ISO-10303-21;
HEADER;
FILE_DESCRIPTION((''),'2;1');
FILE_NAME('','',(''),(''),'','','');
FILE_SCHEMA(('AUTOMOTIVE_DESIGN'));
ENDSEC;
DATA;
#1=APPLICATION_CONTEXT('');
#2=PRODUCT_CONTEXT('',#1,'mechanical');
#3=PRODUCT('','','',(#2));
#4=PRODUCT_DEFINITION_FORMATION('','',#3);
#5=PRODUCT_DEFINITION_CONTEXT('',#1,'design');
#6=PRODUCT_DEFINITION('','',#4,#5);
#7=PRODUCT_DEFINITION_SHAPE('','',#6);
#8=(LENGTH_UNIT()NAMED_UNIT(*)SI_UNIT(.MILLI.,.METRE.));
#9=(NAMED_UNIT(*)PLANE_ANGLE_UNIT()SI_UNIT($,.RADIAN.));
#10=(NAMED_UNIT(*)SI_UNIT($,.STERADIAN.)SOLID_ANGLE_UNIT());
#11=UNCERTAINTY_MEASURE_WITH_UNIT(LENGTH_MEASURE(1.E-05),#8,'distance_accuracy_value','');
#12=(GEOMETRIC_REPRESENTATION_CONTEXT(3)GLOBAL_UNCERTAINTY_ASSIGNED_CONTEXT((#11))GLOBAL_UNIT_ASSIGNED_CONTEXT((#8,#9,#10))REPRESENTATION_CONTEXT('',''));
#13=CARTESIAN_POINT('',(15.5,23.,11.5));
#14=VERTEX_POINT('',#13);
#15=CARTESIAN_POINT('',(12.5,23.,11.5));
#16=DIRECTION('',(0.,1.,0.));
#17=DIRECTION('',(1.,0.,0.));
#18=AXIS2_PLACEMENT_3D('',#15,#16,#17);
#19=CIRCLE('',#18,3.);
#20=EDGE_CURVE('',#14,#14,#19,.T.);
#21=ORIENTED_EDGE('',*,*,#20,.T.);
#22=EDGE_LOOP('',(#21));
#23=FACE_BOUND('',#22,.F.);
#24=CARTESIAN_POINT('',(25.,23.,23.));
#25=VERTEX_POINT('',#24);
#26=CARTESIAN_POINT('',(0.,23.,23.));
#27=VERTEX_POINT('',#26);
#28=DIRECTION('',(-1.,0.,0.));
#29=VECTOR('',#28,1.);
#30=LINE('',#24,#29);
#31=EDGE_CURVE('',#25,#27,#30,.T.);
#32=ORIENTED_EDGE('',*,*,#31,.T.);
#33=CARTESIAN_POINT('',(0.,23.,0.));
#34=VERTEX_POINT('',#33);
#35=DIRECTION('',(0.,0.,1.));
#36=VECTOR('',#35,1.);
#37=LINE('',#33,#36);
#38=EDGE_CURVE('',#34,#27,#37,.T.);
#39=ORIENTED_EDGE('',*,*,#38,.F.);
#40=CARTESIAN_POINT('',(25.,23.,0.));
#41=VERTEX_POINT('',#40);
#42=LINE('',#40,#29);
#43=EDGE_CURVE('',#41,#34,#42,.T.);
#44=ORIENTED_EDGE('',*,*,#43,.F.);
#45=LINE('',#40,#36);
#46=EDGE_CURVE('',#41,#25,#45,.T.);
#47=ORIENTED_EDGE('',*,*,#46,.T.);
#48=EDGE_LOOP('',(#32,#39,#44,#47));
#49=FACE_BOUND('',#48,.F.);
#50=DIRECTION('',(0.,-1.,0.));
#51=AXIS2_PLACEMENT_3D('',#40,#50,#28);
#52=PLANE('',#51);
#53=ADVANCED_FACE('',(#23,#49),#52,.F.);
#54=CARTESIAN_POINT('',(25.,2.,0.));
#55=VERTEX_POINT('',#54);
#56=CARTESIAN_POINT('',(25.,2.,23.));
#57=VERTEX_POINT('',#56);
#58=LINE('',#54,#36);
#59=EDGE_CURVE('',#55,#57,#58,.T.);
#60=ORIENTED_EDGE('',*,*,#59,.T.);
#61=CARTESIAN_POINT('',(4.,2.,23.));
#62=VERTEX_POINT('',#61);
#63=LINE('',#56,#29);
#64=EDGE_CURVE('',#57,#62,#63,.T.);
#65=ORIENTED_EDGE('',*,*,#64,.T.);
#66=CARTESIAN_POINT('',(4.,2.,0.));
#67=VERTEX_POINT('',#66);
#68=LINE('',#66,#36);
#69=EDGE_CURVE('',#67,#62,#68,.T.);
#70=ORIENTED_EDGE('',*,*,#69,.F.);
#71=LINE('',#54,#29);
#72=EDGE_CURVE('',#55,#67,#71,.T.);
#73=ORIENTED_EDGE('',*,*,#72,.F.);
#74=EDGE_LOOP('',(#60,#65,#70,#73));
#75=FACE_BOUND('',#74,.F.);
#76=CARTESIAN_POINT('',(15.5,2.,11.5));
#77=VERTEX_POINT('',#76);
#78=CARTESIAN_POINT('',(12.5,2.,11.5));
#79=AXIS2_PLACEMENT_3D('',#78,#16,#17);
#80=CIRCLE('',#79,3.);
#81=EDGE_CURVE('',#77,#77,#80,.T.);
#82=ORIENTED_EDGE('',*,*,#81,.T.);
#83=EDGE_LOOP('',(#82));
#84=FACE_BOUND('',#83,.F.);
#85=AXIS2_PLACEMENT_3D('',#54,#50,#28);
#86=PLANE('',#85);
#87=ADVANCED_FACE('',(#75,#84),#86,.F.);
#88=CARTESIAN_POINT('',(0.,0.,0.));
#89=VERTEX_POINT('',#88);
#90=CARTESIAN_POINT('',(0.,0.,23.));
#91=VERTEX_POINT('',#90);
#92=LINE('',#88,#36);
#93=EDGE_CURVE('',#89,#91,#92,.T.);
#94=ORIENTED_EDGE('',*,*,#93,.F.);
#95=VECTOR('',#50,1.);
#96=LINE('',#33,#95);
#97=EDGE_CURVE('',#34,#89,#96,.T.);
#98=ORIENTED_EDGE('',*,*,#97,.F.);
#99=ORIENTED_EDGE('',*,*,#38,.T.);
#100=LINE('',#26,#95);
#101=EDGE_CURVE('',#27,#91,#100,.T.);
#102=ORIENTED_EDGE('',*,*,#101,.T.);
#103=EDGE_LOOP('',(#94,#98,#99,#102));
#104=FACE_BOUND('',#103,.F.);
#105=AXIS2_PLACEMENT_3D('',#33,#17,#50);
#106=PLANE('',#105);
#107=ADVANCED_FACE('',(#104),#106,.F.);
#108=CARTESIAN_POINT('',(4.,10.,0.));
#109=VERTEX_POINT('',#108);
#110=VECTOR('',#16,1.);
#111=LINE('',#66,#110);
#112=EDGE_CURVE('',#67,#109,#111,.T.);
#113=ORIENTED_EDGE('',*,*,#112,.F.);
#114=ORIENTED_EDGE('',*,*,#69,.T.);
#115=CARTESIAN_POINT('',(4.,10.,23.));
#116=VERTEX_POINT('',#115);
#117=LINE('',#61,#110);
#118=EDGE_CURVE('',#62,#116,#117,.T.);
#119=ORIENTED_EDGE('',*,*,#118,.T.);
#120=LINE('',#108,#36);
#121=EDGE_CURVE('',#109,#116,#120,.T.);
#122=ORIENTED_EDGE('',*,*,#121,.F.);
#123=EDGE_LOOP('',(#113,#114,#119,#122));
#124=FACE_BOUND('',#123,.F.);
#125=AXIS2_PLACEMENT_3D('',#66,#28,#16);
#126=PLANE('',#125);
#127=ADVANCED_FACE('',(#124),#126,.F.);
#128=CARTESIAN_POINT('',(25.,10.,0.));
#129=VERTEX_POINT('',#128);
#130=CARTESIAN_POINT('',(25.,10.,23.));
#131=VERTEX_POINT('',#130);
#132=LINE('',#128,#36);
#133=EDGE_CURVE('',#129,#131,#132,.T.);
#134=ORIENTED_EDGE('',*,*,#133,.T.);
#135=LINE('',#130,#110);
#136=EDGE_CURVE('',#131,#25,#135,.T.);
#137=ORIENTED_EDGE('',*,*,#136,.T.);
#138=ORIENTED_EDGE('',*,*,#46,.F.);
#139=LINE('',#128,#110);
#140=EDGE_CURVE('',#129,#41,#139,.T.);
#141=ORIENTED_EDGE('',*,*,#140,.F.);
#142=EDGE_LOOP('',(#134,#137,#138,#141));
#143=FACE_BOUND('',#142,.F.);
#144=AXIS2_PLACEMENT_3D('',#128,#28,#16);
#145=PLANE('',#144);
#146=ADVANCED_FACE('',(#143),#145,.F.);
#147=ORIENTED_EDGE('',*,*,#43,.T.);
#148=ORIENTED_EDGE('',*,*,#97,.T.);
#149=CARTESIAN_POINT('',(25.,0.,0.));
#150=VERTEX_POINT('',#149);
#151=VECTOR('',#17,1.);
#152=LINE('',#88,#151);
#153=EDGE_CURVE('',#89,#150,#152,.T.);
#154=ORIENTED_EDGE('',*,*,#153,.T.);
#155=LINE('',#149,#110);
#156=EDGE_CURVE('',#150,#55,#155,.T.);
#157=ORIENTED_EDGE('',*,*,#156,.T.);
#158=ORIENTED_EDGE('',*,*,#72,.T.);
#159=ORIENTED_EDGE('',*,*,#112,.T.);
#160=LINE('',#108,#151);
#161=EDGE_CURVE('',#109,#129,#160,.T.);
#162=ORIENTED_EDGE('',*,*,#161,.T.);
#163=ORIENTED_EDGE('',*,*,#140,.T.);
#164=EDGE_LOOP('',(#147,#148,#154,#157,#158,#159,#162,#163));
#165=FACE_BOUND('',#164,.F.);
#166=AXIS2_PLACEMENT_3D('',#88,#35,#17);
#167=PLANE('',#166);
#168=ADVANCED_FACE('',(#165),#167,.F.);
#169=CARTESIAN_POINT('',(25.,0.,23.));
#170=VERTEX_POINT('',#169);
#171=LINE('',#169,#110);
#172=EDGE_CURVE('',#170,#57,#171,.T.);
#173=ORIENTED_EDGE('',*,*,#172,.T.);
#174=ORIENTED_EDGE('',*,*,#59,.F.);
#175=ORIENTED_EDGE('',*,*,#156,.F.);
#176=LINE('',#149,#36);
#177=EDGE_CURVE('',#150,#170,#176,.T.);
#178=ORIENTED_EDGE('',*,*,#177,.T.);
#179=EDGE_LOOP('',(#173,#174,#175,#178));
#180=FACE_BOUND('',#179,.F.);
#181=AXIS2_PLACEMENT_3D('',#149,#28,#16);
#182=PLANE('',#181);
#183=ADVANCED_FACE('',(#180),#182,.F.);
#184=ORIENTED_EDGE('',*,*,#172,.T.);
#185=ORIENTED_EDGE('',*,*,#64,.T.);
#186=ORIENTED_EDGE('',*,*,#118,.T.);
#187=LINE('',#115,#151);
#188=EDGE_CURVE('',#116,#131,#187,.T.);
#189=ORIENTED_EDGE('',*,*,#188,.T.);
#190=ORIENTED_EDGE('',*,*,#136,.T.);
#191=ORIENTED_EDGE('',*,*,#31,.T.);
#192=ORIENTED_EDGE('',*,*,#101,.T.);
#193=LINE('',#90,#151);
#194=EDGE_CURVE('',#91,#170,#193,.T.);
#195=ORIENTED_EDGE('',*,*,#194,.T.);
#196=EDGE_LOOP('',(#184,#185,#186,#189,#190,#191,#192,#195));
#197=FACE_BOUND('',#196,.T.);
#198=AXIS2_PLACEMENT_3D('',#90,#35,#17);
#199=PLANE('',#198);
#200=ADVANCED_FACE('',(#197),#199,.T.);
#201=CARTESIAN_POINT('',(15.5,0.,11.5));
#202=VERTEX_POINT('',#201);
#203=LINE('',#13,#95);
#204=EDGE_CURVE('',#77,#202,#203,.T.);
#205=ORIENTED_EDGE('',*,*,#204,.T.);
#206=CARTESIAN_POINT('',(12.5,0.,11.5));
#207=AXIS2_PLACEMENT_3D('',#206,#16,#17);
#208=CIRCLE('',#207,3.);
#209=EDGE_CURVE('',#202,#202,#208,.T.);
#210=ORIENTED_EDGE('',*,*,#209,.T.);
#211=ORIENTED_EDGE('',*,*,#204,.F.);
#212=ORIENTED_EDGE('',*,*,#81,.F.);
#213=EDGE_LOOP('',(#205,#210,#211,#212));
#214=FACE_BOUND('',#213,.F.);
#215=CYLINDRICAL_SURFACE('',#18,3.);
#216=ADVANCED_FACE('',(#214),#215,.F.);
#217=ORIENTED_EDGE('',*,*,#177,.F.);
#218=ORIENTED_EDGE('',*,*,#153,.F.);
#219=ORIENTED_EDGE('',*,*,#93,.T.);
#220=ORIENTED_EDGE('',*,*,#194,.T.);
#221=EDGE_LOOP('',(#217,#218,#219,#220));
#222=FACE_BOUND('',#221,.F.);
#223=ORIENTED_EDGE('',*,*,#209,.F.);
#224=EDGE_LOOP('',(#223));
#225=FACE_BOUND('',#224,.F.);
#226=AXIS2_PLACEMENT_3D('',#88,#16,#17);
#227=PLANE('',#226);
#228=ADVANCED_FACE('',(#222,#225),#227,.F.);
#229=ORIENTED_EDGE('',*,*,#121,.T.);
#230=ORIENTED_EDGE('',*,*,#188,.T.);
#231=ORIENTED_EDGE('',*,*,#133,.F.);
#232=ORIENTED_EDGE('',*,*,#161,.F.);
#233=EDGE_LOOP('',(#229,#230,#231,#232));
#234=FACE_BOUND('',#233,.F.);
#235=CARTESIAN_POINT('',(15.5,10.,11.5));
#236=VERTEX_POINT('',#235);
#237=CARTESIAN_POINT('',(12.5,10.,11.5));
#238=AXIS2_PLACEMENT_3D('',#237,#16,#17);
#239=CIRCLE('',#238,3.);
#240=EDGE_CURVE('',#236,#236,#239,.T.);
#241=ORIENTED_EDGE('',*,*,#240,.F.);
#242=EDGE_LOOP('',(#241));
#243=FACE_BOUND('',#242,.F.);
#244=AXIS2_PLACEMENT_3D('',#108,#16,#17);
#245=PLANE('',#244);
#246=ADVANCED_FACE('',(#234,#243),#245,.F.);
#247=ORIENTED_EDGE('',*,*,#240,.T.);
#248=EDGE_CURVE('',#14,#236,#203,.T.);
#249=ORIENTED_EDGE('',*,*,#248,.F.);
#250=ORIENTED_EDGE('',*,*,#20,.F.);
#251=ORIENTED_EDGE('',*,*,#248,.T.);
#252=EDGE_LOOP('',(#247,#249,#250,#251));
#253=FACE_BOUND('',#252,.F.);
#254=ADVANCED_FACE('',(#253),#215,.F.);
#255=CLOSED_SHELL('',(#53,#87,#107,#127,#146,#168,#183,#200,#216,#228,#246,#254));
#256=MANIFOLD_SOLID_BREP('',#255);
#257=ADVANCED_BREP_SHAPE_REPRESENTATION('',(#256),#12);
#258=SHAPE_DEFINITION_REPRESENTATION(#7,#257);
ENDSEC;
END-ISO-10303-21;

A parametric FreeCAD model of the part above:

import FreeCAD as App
import Part
import Sketcher
Q = App.Units.Quantity


def add_polygon(sketch, points):
    """Adds a closed chain of lines whose ends are joined by coincident constraints."""
    first, n = sketch.GeometryCount, len(points)
    for a, b in zip(points, points[1:] + points[:1]):
        sketch.addGeometry(Part.LineSegment(App.Vector(*a, 0), App.Vector(*b, 0)), False)
    for i in range(n):
        sketch.addConstraint(Sketcher.Constraint("Coincident", first + i, 2, first + (i + 1) % n, 1))

doc = App.newDocument("Part")
body = doc.addObject("PartDesign::Body", "Body")

# Sketch on XY plane
sketch1 = doc.addObject("Sketcher::SketchObject", "Sketch")
body.addObject(sketch1)
sketch1.AttachmentSupport = (doc.XY_Plane, [""])
sketch1.MapMode = "FlatFace"
add_polygon(sketch1, [(0, 23), (0, 0), (25, 0), (25, 2), (4, 2), (4, 10), (25, 10), (25, 23)])  # lines 0-7
sketch1.addConstraint([
    Sketcher.Constraint("Vertical", 0),
    Sketcher.Constraint("Horizontal", 1),
    Sketcher.Constraint("Vertical", 2),
    Sketcher.Constraint("Horizontal", 3),
    Sketcher.Constraint("Vertical", 4),
    Sketcher.Constraint("Horizontal", 5),
    Sketcher.Constraint("Vertical", 6),
    Sketcher.Constraint("Horizontal", 7),
    Sketcher.Constraint("Coincident", 0, 2, -1, 1),
    Sketcher.Constraint("Vertical", 2, 2, 5, 2),
    Sketcher.Constraint("DistanceX", 1, 1, 1, 2, Q("25 mm")),
    Sketcher.Constraint("DistanceY", 2, 1, 2, 2, Q("2 mm")),
    Sketcher.Constraint("DistanceY", 4, 1, 4, 2, Q("8 mm")),
    Sketcher.Constraint("DistanceY", 6, 1, 6, 2, Q("13 mm")),
    Sketcher.Constraint("DistanceX", 3, 2, 3, 1, Q("21 mm")),
])
pad1 = doc.addObject("PartDesign::Pad", "Pad")
body.addObject(pad1)
pad1.Profile = sketch1
pad1.Length = 23

# Sketch on XZ plane
sketch2 = doc.addObject("Sketcher::SketchObject", "Sketch001")
body.addObject(sketch2)
sketch2.AttachmentSupport = (doc.XZ_Plane, [""])
sketch2.MapMode = "FlatFace"
sketch2.AttachmentOffset = App.Placement(App.Vector(0, 0, -23), App.Rotation())
sketch2.addGeometry(Part.Circle(App.Vector(12.5, 11.5, 0), App.Vector(0, 0, 1), 3), False)
sketch2.addConstraint([
    Sketcher.Constraint("Diameter", 0, Q("6 mm")),
    Sketcher.Constraint("DistanceX", -1, 1, 0, 3, Q("12.5 mm")),
    Sketcher.Constraint("DistanceY", -1, 1, 0, 3, Q("11.5 mm")),
])
pocket1 = doc.addObject("PartDesign::Pocket", "Pocket")
body.addObject(pocket1)
pocket1.Profile = sketch2
pocket1.Type = "ThroughAll"
pocket1.Reversed = True

doc.recompute()
